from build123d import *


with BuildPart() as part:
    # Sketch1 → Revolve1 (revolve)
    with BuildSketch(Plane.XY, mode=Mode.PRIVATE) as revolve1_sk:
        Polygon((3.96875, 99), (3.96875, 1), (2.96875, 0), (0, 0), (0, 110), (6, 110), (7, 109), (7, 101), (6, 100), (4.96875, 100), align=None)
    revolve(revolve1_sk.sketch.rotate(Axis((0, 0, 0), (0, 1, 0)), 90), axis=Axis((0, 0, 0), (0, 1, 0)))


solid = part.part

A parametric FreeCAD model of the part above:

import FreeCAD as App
import Part
import Sketcher

doc = App.newDocument("Part")
params = doc.addObject("Spreadsheet::Sheet", "Params")
for row, (alias, value) in enumerate([
    ("sketch1_width", "6 mm"),
    ("sketch1_height", "98 mm"),
    ("sketch1_height2", "8 mm"),
    ("sketch1_height3", "110 mm"),
    ("revolution_angle", "360 deg"),
], start=1):
    params.set(f"A{row}", alias)
    params.set(f"B{row}", "=" + value)
    params.setAlias(f"B{row}", alias)

body = doc.addObject("PartDesign::Body", "Body")

# Sketch on XY plane
sketch1 = body.newObject("Sketcher::SketchObject", "Sketch")
sketch1.AttachmentSupport = (doc.getObject("XY_Plane"), [""])
sketch1.MapMode = "FlatFace"
sketch1.addGeometry([
    Part.LineSegment(App.Vector(4, 1, 0), App.Vector(4, 99, 0)),  # 0
    Part.LineSegment(App.Vector(4, 99, 0), App.Vector(5, 100, 0)),  # 1
    Part.LineSegment(App.Vector(5, 100, 0), App.Vector(6, 100, 0)),  # 2
    Part.LineSegment(App.Vector(6, 100, 0), App.Vector(7, 101, 0)),  # 3
    Part.LineSegment(App.Vector(7, 101, 0), App.Vector(7, 109, 0)),  # 4
    Part.LineSegment(App.Vector(7, 109, 0), App.Vector(6, 110, 0)),  # 5
    Part.LineSegment(App.Vector(6, 110, 0), App.Vector(0, 110, 0)),  # 6
    Part.LineSegment(App.Vector(0, 110, 0), App.Vector(0, 0, 0)),  # 7
    Part.LineSegment(App.Vector(0, 0, 0), App.Vector(3, 0, 0)),  # 8
    Part.LineSegment(App.Vector(3, 0, 0), App.Vector(4, 1, 0)),  # 9
], False)
sketch1.addConstraint([
    Sketcher.Constraint("Coincident", 0, 2, 1, 1),
    Sketcher.Constraint("Coincident", 1, 2, 2, 1),
    Sketcher.Constraint("Coincident", 2, 2, 3, 1),
    Sketcher.Constraint("Coincident", 3, 2, 4, 1),
    Sketcher.Constraint("Coincident", 4, 2, 5, 1),
    Sketcher.Constraint("Coincident", 5, 2, 6, 1),
    Sketcher.Constraint("Coincident", 6, 2, 7, 1),
    Sketcher.Constraint("Coincident", 7, 2, 8, 1),
    Sketcher.Constraint("Coincident", 8, 2, 9, 1),
    Sketcher.Constraint("Coincident", 9, 2, 0, 1),
    Sketcher.Constraint("Vertical", 0),
    Sketcher.Constraint("Horizontal", 2),
    Sketcher.Constraint("Vertical", 4),
    Sketcher.Constraint("Horizontal", 6),
    Sketcher.Constraint("Vertical", 7),
    Sketcher.Constraint("Horizontal", 8),
    Sketcher.Constraint("Coincident", 7, 2, -1, 1),
    Sketcher.Constraint("Parallel", 1, 3),
    Sketcher.Constraint("Perpendicular", 3, 5),
    Sketcher.Constraint("Perpendicular", 5, 9),
    Sketcher.Constraint("Vertical", 2, 2, 5, 2),
    Sketcher.Constraint("Equal", 1, 3),
    Sketcher.Constraint("Equal", 3, 5),
    Sketcher.Constraint("Equal", 5, 9),
    Sketcher.Constraint("DistanceX", 6, 2, 6, 1, 6.0),
    Sketcher.Constraint("DistanceY", 0, 1, 0, 2, 98.0),
    Sketcher.Constraint("DistanceY", 4, 1, 4, 2, 8.0),
    Sketcher.Constraint("DistanceY", 7, 2, 7, 1, 110.0),
    Sketcher.Constraint("DistanceX", 2, 1, 2, 2, 1.03125),
])
sketch1.setExpression("Constraints[24]", "Params.sketch1_width")
sketch1.setExpression("Constraints[25]", "Params.sketch1_height")
sketch1.setExpression("Constraints[26]", "Params.sketch1_height2")
sketch1.setExpression("Constraints[27]", "Params.sketch1_height3")
revolution = body.newObject("PartDesign::Revolution", "Revolution")
revolution.Profile = sketch1
revolution.ReferenceAxis = (sketch1, ["V_Axis"])
revolution.setExpression("Angle", "Params.revolution_angle")

doc.recompute()
